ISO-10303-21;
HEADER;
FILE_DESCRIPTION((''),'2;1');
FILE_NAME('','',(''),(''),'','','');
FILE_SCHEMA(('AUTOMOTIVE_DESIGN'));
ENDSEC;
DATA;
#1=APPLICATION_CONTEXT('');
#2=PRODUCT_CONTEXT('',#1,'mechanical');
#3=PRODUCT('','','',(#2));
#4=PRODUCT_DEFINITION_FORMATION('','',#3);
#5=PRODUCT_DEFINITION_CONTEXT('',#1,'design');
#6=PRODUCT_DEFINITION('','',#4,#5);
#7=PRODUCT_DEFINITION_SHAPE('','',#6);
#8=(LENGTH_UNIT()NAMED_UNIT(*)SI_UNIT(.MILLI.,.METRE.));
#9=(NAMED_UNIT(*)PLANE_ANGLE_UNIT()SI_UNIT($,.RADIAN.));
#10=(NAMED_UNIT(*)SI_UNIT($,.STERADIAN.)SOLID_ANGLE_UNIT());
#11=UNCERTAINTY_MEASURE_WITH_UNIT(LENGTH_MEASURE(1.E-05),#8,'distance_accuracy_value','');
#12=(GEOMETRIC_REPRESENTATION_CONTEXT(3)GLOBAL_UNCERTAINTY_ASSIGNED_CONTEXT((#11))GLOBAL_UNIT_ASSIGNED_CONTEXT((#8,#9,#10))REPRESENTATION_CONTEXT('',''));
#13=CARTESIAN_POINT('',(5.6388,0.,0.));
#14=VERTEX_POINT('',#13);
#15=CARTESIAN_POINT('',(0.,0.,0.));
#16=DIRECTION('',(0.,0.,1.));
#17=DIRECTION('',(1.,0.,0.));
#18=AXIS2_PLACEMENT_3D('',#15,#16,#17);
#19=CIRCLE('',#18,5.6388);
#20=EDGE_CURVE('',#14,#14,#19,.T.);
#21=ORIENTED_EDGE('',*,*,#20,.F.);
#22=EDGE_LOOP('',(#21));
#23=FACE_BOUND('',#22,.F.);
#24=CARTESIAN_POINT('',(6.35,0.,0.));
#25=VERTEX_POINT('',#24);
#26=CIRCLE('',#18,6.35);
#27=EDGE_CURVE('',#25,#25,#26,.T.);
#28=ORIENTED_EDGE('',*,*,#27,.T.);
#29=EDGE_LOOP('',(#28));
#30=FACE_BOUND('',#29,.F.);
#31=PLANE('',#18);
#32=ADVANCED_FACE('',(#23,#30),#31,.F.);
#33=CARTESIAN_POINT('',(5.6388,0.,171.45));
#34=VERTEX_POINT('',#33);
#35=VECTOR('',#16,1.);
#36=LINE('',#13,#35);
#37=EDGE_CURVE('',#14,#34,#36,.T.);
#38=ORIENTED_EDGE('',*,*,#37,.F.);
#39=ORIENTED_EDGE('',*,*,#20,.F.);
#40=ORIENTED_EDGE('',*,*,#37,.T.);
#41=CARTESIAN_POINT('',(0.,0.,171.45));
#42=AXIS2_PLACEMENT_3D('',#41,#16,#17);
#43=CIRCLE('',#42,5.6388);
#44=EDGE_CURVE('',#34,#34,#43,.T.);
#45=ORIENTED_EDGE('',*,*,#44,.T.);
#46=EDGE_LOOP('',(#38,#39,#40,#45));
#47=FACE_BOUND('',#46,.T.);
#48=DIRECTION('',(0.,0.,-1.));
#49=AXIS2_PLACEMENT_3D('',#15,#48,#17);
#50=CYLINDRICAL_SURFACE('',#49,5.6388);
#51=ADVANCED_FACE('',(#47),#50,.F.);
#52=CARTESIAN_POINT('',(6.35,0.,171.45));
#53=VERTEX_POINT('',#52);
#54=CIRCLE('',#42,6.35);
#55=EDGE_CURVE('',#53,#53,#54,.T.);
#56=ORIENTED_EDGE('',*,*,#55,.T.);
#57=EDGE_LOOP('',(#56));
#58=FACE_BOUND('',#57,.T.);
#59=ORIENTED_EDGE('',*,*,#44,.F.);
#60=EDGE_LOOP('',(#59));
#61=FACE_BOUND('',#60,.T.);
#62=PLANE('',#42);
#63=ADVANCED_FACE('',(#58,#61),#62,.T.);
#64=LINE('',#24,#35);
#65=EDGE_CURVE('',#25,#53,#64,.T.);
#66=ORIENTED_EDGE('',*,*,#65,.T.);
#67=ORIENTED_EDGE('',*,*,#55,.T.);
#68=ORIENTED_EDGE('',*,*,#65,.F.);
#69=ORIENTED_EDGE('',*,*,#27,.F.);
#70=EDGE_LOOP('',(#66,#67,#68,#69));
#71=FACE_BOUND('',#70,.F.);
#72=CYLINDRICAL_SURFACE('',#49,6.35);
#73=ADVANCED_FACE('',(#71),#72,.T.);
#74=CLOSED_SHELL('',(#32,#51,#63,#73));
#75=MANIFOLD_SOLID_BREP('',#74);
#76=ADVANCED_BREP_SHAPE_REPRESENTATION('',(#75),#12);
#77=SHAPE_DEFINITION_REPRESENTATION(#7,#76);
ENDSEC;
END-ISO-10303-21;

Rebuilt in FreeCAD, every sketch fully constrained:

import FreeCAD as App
import Part
import Sketcher

V = App.Vector
Q = App.Units.Quantity

doc = App.newDocument("Part")
params = doc.addObject("Spreadsheet::Sheet", "Params")
for row, (alias, value) in enumerate([
    ("sketch1_diameter", "0.5 in"),
    ("sketch1_diameter2", "0.444 in"),
    ("pad1_length", "6.75 in"),
], start=1):
    params.set(f"A{row}", alias)
    params.set(f"B{row}", "=" + value)
    params.setAlias(f"B{row}", alias)

body = doc.addObject("PartDesign::Body", "Body")

# Sketch on XY plane
sketch1 = doc.addObject("Sketcher::SketchObject", "Sketch")
body.addObject(sketch1)
sketch1.AttachmentSupport = (doc.XY_Plane, [""])
sketch1.MapMode = "FlatFace"
sketch1.addGeometry(Part.Circle(V(0, 0, 0), V(0, 0, 1), 6.35), False)
sketch1.addGeometry(Part.Circle(V(0, 0, 0), V(0, 0, 1), 5.6388), False)
sketch1.addConstraint(Sketcher.Constraint("Coincident", 0, 3, -1, 1))
sketch1.addConstraint(Sketcher.Constraint("Coincident", 1, 3, -1, 1))
sketch1.addConstraint(Sketcher.Constraint("Diameter", 0, Q("0.5 in")))
sketch1.addConstraint(Sketcher.Constraint("Diameter", 1, Q("0.444 in")))
sketch1.setExpression("Constraints[2]", "Params.sketch1_diameter")
sketch1.setExpression("Constraints[3]", "Params.sketch1_diameter2")
pad1 = doc.addObject("PartDesign::Pad", "Pad")
body.addObject(pad1)
pad1.Profile = sketch1
pad1.setExpression("Length", "Params.pad1_length")

doc.recompute()
